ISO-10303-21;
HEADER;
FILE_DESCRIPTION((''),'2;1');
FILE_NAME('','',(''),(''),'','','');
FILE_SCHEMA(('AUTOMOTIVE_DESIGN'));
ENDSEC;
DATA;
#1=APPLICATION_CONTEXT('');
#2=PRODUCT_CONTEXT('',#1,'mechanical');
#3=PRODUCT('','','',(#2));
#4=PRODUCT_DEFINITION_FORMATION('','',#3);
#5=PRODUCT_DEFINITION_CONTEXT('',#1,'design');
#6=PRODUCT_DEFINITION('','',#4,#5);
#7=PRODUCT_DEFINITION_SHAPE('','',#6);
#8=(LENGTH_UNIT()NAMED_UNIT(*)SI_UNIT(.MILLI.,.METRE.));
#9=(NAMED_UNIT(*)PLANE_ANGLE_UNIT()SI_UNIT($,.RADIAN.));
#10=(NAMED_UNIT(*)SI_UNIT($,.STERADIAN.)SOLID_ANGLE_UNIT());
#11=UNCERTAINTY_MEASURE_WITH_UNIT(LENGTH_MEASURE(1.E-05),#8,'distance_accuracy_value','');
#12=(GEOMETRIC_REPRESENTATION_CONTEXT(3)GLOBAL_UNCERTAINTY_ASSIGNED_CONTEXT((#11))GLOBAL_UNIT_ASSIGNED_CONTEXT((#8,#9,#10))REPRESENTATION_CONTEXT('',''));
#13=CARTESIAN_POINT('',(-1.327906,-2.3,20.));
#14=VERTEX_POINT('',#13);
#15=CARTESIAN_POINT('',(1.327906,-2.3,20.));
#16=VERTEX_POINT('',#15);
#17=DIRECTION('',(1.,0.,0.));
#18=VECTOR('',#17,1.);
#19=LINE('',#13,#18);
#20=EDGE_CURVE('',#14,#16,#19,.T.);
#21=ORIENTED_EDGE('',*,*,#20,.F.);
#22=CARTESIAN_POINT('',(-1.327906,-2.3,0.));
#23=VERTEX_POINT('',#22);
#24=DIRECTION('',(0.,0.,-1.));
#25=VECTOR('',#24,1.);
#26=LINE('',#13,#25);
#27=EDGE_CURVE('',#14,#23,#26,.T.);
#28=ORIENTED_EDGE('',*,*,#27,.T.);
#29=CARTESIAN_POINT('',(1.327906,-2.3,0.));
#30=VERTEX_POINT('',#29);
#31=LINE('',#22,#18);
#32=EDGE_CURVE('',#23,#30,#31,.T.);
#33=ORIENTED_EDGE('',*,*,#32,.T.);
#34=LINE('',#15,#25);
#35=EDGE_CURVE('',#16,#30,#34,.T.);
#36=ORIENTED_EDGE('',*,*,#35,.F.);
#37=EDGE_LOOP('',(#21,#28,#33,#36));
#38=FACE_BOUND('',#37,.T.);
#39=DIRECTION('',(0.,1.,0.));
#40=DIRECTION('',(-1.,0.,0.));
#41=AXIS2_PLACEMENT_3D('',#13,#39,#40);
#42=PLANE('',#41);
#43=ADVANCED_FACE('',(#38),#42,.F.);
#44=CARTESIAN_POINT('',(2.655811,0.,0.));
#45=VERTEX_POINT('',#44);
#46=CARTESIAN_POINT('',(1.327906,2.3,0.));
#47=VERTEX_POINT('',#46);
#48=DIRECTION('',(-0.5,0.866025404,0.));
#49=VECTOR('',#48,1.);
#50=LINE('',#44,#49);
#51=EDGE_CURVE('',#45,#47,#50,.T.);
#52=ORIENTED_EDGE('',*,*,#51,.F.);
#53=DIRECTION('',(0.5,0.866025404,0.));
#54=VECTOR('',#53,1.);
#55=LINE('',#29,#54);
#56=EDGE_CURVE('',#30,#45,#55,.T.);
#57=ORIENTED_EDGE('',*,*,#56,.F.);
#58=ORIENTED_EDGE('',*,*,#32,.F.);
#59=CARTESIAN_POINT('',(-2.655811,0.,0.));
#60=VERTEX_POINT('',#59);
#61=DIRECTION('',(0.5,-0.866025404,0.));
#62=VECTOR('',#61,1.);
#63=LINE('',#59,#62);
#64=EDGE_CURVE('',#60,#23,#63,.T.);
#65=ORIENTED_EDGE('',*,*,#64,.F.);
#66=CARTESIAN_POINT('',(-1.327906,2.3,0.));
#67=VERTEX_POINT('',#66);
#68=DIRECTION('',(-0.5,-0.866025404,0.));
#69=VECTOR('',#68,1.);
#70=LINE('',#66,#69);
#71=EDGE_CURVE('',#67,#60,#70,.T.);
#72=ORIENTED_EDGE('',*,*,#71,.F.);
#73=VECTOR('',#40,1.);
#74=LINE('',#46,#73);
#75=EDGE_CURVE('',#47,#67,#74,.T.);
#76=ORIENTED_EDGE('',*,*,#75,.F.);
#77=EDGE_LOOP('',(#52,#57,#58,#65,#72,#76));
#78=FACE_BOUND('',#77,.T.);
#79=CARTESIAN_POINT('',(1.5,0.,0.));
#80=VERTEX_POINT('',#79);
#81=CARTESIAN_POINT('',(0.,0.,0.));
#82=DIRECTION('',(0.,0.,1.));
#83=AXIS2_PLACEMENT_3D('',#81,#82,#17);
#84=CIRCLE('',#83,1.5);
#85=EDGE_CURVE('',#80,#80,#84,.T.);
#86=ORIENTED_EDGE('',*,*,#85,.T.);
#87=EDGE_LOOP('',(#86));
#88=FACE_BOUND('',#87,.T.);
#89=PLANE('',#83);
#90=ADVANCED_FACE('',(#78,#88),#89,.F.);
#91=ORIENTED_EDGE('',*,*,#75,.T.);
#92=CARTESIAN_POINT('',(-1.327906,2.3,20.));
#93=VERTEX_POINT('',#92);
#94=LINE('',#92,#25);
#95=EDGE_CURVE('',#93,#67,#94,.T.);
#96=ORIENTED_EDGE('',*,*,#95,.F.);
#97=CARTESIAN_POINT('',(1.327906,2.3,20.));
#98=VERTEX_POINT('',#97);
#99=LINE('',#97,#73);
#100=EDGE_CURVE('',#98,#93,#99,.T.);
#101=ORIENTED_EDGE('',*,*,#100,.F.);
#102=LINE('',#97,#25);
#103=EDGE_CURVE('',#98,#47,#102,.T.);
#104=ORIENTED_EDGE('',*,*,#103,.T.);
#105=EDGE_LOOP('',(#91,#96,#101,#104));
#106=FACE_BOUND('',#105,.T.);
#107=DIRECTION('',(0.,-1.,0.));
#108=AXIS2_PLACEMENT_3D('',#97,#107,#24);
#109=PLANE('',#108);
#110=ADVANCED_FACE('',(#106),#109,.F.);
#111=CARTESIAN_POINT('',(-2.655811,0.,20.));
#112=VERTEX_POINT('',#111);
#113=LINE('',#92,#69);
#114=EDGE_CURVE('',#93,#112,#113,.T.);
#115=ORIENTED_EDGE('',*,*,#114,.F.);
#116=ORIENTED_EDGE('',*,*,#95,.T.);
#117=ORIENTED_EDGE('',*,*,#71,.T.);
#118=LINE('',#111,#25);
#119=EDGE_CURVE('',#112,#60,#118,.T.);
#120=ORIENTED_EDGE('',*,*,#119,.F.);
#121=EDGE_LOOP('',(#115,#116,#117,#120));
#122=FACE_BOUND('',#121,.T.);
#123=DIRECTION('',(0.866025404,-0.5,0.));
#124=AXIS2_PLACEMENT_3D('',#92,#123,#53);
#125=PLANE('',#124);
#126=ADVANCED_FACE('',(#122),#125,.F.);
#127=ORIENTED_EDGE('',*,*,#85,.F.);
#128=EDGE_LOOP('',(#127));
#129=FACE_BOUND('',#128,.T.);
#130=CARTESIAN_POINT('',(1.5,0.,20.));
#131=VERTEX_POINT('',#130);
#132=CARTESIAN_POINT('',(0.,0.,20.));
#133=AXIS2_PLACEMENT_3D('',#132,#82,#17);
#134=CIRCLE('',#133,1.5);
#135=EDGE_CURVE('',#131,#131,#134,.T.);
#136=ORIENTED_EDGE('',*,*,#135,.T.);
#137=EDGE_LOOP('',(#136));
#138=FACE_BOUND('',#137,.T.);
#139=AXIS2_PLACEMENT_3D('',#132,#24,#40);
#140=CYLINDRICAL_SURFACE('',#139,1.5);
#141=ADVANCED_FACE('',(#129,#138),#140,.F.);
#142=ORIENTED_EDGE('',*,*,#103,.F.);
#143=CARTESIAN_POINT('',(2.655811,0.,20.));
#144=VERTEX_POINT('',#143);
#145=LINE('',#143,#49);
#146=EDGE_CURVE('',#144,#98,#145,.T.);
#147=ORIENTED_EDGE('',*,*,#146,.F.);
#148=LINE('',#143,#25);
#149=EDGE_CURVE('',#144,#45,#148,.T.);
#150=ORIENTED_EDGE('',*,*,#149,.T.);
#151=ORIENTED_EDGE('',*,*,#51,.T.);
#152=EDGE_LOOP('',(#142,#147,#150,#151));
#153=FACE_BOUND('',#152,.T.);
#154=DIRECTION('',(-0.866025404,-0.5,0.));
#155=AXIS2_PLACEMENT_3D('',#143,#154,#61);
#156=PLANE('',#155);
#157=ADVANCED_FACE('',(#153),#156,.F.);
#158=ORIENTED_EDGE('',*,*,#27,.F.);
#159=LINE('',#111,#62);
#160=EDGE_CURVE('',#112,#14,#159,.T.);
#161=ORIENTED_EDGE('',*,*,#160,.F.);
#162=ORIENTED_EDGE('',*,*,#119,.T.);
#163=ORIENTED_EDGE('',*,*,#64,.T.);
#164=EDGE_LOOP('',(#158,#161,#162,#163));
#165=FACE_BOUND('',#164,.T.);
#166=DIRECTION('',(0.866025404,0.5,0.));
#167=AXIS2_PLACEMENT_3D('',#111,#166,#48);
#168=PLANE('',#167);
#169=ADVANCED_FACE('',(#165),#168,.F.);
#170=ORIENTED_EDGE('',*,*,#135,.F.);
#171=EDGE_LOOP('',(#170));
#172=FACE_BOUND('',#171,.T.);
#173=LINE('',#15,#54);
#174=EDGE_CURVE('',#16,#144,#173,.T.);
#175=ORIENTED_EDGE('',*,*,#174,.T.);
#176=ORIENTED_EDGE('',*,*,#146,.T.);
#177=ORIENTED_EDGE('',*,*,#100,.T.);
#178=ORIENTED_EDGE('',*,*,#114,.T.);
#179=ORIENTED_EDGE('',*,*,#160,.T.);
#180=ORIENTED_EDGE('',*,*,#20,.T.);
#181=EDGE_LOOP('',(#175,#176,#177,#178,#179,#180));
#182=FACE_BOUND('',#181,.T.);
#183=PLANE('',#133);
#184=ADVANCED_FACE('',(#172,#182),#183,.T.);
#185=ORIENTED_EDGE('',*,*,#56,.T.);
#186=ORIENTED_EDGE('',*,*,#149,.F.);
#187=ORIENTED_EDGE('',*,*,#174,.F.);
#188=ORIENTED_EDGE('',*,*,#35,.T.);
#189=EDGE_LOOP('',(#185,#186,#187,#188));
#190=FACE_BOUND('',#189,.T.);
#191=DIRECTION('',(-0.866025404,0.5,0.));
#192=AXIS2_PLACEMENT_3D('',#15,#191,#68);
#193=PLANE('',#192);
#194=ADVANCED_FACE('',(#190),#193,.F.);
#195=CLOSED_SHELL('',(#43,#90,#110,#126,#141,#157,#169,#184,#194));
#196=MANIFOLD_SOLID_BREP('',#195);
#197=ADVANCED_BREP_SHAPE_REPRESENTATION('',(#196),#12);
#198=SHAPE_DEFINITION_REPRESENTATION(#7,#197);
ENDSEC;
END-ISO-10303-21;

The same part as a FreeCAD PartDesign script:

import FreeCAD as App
import Part
import Sketcher

V = App.Vector
Q = App.Units.Quantity

doc = App.newDocument("Part")
body = doc.addObject("PartDesign::Body", "Body")

sketch1 = body.newObject("Sketcher::SketchObject", "Sketch")
sketch1.AttachmentSupport = (doc.getObject("XY_Plane"), [""])
sketch1.MapMode = "FlatFace"
sketch1.addGeometry([
    Part.LineSegment(V(2.7, 0, 0), V(1.3, 2.3, 0)),
    Part.LineSegment(V(1.3, 2.3, 0), V(-1.3, 2.3, 0)),
    Part.LineSegment(V(-1.3, 2.3, 0), V(-2.7, 0, 0)),
    Part.LineSegment(V(-2.7, 0, 0), V(-1.3, -2.3, 0)),
    Part.LineSegment(V(-1.3, -2.3, 0), V(1.3, -2.3, 0)),
    Part.LineSegment(V(1.3, -2.3, 0), V(2.7, 0, 0)),
    Part.Circle(V(0, 0, 0), V(0, 0, 1), 1.5),
], False)
sketch1.addConstraint([
    Sketcher.Constraint("Coincident", 0, 2, 1, 1),
    Sketcher.Constraint("Coincident", 1, 2, 2, 1),
    Sketcher.Constraint("Coincident", 2, 2, 3, 1),
    Sketcher.Constraint("Coincident", 3, 2, 4, 1),
    Sketcher.Constraint("Coincident", 4, 2, 5, 1),
    Sketcher.Constraint("Coincident", 5, 2, 0, 1),
    Sketcher.Constraint("Horizontal", 1),
    Sketcher.Constraint("Horizontal", 4),
    Sketcher.Constraint("Coincident", 6, 3, -1, 1),
    Sketcher.Constraint("Symmetric", 0, 2, 3, 2, -1, 1),
    Sketcher.Constraint("Symmetric", 2, 2, 5, 2, -1, 1),
    Sketcher.Constraint("PointOnObject", 2, 2, -1),
    Sketcher.Constraint("Parallel", 2, 5),
    Sketcher.Constraint("Vertical", 1, 2, 3, 2),
    Sketcher.Constraint("Diameter", 6, 3.0),
    Sketcher.Constraint("Angle", 0, Q("120 deg")),
    Sketcher.Constraint("DistanceY", -1, 1, 0, 2, 2.3),
    Sketcher.Constraint("DistanceX", 1, 2, 1, 1, 2.655811),
])
pad1 = body.newObject("PartDesign::Pad", "Pad")
pad1.Profile = sketch1
pad1.Length = 20

doc.recompute()
